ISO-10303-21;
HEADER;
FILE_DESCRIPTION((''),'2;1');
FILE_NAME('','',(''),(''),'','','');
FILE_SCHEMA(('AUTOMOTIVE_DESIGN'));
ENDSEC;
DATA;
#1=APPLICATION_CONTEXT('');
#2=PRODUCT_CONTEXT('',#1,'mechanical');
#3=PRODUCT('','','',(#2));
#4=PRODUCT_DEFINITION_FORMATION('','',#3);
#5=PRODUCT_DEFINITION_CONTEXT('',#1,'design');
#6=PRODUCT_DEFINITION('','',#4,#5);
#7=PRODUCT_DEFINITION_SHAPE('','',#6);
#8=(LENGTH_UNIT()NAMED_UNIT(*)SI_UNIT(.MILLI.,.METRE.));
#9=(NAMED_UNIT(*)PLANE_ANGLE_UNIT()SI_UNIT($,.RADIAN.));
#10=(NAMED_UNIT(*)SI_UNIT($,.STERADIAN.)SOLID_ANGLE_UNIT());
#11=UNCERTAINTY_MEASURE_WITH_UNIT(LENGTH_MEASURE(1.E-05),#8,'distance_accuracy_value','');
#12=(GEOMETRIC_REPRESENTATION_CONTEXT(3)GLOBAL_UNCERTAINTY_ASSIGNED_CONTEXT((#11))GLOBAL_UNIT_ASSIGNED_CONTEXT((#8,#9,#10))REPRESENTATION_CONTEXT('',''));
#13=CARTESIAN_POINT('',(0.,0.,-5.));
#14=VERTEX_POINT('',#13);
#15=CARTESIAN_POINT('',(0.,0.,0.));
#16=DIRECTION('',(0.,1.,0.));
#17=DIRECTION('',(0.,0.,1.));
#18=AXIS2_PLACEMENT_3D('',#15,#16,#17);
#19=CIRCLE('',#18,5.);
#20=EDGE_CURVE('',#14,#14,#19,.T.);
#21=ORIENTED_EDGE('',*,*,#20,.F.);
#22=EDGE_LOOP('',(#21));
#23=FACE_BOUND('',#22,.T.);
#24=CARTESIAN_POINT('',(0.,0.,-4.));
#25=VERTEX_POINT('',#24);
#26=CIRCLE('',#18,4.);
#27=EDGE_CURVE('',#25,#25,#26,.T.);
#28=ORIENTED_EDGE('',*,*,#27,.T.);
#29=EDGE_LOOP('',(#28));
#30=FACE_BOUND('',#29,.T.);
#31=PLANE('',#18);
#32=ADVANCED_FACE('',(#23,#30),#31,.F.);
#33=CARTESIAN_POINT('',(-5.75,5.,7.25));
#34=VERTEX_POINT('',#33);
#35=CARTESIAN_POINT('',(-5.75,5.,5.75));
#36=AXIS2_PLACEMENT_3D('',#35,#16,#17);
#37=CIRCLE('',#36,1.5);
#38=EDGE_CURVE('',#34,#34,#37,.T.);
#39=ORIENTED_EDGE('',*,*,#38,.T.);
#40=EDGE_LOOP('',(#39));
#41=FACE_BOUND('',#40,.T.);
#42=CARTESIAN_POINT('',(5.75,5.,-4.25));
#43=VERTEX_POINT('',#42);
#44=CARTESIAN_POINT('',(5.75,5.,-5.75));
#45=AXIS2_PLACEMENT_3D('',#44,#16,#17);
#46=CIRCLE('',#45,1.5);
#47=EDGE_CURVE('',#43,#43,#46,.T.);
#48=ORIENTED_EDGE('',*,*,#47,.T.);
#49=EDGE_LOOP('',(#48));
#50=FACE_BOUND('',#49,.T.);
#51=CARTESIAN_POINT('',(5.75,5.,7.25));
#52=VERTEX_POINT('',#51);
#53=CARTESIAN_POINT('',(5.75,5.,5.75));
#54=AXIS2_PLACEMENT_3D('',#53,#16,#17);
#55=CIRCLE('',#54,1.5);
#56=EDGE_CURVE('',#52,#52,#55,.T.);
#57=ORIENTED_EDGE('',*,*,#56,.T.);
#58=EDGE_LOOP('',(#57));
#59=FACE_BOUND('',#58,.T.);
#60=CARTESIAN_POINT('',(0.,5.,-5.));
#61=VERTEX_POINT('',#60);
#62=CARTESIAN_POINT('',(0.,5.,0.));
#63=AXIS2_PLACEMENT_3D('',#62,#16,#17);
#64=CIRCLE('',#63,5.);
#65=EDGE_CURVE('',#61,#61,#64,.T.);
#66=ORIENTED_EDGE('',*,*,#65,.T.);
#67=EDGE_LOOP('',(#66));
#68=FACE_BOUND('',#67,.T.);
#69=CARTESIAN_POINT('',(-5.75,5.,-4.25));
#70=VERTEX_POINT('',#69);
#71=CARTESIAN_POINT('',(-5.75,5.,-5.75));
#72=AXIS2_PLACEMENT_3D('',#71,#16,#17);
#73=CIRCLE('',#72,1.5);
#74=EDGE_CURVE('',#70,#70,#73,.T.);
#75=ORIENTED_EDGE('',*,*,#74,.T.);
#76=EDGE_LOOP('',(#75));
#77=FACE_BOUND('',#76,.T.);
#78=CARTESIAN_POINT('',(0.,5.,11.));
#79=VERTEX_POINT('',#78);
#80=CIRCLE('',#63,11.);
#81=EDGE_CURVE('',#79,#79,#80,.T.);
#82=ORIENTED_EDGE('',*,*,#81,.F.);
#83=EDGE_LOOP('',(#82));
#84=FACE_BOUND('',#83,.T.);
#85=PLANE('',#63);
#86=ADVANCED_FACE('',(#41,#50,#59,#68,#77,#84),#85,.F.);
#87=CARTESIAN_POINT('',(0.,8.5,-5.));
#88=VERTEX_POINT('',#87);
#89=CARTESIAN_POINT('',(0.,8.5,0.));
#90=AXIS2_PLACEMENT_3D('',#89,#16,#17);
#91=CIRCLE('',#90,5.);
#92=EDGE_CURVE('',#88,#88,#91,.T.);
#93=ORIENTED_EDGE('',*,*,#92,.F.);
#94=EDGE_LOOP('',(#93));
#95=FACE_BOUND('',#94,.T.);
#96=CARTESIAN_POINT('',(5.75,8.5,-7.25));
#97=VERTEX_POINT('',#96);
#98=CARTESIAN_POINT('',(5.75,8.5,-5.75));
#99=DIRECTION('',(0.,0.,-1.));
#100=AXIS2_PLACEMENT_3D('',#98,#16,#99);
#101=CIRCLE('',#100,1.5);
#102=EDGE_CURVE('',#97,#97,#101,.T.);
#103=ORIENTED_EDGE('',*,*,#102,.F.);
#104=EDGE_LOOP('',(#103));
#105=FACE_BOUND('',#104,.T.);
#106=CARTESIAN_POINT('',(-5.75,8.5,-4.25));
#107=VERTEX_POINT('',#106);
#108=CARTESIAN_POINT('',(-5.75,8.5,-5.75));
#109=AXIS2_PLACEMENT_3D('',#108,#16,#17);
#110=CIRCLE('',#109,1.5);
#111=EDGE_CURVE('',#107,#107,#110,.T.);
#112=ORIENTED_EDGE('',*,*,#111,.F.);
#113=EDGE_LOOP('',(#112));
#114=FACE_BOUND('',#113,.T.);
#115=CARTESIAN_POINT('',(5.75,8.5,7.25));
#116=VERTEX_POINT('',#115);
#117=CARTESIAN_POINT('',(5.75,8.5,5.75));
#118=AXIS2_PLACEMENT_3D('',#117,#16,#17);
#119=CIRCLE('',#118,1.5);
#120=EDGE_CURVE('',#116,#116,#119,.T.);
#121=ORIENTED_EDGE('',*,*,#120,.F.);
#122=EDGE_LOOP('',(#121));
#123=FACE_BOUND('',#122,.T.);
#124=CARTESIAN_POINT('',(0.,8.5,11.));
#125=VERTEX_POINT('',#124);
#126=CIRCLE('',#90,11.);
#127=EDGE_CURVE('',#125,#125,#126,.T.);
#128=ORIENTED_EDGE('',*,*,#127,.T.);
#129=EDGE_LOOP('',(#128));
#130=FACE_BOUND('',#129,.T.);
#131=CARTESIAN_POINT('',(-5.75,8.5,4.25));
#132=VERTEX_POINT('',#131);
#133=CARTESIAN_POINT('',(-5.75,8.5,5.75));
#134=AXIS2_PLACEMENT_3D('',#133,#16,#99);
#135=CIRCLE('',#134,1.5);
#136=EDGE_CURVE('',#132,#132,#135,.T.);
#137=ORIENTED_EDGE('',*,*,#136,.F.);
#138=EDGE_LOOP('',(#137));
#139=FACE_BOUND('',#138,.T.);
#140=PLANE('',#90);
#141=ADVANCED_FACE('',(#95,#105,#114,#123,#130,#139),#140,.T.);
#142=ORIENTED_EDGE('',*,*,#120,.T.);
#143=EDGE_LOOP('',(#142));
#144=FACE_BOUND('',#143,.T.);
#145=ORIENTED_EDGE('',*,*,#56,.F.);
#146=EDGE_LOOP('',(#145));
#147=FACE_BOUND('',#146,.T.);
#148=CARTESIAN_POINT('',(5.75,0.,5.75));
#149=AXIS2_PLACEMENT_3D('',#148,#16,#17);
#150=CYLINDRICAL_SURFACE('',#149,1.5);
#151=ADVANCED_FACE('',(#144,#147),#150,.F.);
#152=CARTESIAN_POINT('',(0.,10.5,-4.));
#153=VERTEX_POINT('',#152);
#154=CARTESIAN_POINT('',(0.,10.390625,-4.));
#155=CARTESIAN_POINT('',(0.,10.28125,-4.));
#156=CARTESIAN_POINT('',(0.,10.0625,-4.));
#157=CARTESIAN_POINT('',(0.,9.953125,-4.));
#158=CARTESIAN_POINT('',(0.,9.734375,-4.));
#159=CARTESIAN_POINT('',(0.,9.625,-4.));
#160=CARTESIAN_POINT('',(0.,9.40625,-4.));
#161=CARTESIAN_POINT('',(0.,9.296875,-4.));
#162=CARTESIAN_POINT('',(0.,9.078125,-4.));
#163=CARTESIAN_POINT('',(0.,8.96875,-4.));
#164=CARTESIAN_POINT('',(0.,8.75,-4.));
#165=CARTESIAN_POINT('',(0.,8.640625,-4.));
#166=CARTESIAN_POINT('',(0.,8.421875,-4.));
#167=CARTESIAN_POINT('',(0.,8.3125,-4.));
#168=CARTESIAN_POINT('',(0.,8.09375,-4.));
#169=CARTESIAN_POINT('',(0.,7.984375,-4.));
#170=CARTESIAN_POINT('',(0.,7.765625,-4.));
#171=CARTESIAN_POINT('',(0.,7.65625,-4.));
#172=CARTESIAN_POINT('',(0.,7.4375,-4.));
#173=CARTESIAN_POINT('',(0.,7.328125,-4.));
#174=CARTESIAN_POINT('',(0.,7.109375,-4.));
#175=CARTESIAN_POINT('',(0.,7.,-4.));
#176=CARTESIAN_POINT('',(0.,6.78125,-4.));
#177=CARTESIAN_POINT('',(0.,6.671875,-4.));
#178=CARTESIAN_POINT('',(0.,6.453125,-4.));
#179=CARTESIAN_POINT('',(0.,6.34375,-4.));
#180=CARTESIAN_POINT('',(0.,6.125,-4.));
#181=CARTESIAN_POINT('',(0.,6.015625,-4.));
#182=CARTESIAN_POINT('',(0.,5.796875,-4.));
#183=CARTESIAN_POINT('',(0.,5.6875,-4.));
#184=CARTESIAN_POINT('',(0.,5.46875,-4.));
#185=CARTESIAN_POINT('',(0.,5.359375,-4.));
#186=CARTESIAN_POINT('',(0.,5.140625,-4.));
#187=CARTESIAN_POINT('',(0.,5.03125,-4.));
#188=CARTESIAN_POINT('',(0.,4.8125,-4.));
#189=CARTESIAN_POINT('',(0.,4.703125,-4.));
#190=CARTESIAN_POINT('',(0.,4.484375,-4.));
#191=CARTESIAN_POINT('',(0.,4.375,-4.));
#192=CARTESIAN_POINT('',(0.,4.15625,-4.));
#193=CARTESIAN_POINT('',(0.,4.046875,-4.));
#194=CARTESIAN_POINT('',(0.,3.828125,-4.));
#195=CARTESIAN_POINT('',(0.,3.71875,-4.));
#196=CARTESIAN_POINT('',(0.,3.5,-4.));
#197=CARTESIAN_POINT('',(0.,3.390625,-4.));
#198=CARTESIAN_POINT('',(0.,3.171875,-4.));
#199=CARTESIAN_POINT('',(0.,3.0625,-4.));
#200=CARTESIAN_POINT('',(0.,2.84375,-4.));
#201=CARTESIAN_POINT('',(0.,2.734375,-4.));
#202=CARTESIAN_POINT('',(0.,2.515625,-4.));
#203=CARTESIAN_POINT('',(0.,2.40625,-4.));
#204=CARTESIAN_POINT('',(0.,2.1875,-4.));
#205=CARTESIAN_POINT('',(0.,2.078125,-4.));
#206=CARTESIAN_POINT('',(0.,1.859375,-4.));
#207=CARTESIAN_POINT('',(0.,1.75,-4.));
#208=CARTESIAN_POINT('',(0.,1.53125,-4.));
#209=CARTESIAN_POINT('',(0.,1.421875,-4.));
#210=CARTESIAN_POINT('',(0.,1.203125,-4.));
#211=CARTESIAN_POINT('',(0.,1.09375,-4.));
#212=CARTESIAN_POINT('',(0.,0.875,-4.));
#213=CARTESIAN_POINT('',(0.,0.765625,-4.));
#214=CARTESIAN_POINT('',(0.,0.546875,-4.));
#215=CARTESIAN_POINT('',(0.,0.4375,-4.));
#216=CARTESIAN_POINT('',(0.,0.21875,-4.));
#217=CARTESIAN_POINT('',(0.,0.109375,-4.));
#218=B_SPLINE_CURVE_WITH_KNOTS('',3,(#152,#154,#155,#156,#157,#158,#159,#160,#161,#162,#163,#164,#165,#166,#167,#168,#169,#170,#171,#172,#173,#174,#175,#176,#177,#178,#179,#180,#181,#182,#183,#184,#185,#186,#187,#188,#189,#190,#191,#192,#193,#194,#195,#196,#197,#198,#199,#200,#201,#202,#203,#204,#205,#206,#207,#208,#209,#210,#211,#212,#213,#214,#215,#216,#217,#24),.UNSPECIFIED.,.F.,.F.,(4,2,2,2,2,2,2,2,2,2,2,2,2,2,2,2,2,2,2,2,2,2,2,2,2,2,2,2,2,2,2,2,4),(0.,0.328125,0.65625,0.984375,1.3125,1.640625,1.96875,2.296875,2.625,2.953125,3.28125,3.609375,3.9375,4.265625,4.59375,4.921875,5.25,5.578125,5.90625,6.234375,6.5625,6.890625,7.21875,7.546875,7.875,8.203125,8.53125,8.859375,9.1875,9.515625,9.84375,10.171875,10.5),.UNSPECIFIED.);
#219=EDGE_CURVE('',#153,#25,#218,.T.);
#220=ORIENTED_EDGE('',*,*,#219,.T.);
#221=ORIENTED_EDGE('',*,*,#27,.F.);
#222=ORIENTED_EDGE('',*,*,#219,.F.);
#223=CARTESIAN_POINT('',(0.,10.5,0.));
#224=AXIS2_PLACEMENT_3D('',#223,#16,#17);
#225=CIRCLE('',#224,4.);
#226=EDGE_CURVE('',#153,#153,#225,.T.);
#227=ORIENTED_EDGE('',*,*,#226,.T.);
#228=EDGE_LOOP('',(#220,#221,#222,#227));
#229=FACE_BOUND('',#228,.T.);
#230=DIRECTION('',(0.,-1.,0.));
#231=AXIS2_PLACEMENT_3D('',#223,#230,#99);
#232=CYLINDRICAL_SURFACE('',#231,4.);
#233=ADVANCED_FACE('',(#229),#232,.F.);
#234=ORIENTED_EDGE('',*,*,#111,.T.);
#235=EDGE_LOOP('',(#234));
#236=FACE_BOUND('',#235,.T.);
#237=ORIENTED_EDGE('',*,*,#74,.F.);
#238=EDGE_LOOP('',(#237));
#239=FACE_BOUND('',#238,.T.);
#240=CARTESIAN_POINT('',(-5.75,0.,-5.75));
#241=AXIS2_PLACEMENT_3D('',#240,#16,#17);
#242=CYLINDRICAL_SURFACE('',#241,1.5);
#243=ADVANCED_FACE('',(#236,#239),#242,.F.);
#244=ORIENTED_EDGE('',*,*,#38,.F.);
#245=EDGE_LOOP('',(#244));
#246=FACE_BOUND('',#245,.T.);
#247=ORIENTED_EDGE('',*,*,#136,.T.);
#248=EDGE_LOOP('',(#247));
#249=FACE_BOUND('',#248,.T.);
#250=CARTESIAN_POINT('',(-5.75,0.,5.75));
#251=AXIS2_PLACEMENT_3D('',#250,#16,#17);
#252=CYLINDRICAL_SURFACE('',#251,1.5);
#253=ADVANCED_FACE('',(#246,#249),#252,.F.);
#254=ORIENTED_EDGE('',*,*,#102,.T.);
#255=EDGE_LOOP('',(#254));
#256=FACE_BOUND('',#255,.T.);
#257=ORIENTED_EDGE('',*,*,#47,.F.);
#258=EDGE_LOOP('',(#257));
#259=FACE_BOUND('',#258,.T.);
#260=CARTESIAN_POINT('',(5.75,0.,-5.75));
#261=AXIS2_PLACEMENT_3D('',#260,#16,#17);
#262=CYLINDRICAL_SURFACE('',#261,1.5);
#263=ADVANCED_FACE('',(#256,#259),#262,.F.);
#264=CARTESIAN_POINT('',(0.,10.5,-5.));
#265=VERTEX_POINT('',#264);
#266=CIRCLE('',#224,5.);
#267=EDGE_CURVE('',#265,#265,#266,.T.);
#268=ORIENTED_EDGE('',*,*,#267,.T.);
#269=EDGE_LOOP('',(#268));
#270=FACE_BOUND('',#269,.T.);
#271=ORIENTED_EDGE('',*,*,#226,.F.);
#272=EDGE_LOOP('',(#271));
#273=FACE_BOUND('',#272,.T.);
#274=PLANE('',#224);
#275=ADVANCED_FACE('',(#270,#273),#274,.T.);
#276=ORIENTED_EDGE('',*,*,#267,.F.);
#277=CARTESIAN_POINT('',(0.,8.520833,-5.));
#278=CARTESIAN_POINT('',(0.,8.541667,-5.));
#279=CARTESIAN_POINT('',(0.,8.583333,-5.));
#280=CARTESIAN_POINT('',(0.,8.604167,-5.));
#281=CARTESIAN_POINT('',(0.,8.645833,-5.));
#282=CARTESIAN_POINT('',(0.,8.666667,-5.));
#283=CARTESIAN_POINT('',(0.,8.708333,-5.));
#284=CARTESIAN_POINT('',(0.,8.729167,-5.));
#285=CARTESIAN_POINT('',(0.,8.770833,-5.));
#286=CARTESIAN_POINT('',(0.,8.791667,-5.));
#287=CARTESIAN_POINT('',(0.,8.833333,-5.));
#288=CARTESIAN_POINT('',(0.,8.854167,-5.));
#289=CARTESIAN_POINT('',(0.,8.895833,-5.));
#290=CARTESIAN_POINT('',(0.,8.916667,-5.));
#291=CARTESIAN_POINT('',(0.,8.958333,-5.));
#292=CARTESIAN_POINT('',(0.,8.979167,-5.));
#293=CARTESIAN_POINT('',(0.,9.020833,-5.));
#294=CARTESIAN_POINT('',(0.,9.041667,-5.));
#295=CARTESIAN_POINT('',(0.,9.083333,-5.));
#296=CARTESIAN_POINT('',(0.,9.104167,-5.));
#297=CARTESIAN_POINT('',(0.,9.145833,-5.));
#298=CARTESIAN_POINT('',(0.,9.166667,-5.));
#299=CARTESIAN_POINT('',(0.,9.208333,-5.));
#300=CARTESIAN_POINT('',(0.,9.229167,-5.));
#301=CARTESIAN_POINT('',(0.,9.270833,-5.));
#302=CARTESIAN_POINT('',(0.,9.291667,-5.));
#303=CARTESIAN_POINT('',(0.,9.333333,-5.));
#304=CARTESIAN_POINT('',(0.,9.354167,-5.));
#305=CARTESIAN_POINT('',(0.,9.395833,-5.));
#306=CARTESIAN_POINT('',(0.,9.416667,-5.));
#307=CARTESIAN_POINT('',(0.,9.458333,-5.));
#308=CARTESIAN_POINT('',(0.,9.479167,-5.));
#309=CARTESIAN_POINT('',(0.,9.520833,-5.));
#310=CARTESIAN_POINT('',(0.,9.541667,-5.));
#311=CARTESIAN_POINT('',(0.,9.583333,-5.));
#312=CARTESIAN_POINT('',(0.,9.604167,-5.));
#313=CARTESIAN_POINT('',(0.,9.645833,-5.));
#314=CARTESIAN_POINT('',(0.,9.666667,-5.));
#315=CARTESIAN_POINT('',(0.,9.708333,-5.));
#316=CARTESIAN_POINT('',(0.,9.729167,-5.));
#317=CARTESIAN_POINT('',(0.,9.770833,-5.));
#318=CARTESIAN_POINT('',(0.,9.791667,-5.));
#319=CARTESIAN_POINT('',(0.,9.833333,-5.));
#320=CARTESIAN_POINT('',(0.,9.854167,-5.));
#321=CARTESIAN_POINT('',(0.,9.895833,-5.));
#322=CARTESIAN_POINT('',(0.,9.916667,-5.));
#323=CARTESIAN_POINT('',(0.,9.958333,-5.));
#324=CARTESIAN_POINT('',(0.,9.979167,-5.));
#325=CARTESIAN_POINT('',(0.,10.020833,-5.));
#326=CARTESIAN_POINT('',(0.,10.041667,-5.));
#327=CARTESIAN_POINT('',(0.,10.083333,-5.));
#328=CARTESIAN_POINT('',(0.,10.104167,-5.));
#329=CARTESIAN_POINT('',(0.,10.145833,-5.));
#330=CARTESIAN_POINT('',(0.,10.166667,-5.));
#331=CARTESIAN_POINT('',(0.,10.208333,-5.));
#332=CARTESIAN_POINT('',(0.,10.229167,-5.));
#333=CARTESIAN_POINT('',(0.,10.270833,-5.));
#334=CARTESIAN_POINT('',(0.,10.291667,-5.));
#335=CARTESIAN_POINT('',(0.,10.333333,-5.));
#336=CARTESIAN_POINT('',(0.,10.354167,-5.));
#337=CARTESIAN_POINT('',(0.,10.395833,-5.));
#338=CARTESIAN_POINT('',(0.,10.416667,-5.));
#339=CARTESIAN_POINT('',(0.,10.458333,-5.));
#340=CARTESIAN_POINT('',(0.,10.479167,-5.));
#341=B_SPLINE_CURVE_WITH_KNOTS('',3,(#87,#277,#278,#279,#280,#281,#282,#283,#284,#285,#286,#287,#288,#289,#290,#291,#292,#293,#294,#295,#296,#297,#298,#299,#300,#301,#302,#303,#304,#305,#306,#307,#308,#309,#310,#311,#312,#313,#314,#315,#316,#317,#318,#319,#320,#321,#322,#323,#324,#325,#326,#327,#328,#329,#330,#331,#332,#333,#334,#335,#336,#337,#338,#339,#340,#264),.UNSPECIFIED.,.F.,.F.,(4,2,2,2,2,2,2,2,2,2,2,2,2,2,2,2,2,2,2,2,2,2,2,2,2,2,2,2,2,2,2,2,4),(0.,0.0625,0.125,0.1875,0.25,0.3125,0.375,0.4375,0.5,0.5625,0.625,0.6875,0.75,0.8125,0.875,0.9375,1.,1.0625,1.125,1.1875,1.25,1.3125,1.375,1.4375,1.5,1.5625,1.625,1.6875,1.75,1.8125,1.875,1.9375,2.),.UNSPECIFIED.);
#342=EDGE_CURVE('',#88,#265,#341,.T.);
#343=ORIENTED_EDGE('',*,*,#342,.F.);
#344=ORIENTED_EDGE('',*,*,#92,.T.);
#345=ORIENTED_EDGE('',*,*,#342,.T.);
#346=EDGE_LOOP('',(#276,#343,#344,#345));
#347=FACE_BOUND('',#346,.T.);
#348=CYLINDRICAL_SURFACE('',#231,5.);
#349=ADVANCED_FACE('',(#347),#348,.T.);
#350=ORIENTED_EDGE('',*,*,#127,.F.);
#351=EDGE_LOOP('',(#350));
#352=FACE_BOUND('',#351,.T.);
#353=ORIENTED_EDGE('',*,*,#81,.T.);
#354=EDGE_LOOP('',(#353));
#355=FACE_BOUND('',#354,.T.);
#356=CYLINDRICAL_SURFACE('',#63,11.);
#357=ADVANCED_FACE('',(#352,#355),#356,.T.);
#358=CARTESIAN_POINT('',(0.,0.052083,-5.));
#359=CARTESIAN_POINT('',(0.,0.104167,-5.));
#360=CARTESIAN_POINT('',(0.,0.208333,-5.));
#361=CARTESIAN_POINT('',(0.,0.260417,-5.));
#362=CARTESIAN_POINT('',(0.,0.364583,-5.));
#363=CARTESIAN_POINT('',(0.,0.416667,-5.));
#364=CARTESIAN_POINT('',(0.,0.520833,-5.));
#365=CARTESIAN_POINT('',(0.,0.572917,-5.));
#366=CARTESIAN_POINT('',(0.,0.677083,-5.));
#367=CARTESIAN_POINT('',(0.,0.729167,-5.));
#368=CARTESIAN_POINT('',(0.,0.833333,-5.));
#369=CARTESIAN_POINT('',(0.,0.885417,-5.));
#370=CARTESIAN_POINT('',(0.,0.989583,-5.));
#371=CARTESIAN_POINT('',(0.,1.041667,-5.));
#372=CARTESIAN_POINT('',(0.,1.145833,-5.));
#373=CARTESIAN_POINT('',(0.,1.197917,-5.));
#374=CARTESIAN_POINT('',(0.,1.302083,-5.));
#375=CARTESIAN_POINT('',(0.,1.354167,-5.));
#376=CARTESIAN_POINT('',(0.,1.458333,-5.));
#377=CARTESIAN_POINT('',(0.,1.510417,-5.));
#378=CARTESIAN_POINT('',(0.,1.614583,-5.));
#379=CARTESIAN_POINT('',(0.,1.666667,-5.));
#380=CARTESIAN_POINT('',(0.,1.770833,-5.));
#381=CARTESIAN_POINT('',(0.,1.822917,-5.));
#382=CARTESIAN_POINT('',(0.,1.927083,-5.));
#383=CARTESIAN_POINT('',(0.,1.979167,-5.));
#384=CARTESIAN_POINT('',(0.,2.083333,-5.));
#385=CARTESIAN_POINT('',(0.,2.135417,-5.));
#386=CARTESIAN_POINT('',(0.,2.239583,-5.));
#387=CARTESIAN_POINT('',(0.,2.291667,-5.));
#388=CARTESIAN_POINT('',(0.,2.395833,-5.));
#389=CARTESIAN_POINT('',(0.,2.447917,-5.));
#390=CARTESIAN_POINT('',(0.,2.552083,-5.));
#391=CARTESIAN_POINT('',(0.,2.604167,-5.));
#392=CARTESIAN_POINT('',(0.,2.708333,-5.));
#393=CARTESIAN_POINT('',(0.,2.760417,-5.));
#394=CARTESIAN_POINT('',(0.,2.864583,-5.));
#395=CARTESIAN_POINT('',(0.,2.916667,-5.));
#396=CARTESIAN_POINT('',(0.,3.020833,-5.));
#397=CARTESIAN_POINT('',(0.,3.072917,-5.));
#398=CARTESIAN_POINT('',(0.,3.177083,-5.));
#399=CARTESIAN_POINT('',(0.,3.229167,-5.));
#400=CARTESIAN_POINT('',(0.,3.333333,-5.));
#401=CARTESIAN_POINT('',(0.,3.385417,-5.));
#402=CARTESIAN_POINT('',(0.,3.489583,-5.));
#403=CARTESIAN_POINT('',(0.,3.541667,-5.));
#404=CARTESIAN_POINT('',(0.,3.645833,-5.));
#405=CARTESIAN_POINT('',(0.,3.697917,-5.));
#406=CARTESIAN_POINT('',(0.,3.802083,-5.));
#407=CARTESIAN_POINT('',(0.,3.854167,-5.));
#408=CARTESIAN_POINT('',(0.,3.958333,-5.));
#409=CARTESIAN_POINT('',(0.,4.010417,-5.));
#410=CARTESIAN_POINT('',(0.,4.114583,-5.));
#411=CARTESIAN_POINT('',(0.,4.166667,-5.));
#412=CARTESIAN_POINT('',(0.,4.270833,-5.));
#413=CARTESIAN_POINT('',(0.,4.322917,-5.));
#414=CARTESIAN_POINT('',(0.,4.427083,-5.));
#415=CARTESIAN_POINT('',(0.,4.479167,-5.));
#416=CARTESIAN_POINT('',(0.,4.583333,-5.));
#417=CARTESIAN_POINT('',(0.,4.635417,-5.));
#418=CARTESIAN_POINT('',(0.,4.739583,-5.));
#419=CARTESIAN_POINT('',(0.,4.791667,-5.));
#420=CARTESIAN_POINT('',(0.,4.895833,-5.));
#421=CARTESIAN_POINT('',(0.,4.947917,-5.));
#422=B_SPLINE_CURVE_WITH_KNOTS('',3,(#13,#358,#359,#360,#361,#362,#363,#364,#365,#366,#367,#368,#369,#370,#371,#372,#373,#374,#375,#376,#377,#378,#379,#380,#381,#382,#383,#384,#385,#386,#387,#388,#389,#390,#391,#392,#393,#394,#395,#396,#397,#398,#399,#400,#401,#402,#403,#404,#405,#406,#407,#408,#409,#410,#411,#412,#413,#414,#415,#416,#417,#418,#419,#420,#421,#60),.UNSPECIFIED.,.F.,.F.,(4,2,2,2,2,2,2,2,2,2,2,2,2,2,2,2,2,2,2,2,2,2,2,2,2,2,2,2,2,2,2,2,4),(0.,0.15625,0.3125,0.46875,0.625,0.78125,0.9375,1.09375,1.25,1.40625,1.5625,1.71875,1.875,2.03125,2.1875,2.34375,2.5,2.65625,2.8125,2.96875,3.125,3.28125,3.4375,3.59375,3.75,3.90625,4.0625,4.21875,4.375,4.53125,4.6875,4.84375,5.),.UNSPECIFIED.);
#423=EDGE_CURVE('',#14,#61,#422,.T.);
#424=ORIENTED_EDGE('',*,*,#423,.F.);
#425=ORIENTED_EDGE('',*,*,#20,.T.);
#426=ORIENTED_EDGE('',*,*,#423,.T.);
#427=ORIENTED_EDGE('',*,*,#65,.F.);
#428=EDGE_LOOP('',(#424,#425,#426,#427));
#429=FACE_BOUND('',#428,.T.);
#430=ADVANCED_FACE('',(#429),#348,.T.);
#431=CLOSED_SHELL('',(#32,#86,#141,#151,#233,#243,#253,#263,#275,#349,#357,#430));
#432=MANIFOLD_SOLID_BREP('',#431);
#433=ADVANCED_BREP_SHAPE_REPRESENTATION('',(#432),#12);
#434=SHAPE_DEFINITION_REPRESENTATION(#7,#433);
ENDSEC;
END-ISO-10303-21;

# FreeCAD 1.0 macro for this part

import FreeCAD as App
import Part
import Sketcher
from FreeCAD import Vector

doc = App.newDocument("Part")
body = doc.addObject("PartDesign::Body", "Body")

sketch1 = doc.addObject("Sketcher::SketchObject", "Sketch")
body.addObject(sketch1)
sketch1.AttachmentSupport = (doc.XZ_Plane, [""])
sketch1.MapMode = "FlatFace"
sketch1.addGeometry([
    Part.Circle(Vector(0, 0, 0), Vector(0, 0, 1), 5),
    Part.Circle(Vector(0, 0, 0), Vector(0, 0, 1), 4),
], False)
sketch1.addConstraint([
    Sketcher.Constraint("Coincident", 0, 3, -1, 1),
    Sketcher.Constraint("Coincident", 1, 3, -1, 1),
    Sketcher.Constraint("Diameter", 0, 10.0),
    Sketcher.Constraint("Diameter", 1, 8.0),
])
pad1 = doc.addObject("PartDesign::Pad", "Pad")
body.addObject(pad1)
pad1.Profile = sketch1
pad1.Length = 10.5
pad1.Reversed = True

sketch2 = doc.addObject("Sketcher::SketchObject", "Sketch001")
body.addObject(sketch2)
sketch2.AttachmentSupport = (doc.XZ_Plane, [""])
sketch2.MapMode = "FlatFace"
sketch2.AttachmentOffset = App.Placement(Vector(0, 0, -8.5), App.Rotation())
sketch2.addGeometry([
    Part.Circle(Vector(0, 0, 0), Vector(0, 0, 1), 11),
    Part.Circle(Vector(0, 0, 0), Vector(0, 0, 1), 4.5),
], False)
sketch2.addConstraint([
    Sketcher.Constraint("Coincident", 0, 3, -1, 1),
    Sketcher.Constraint("Coincident", 1, 3, -1, 1),
    Sketcher.Constraint("Diameter", 0, 22.0),
    Sketcher.Constraint("Diameter", 1, 9.0),
])
pad2 = doc.addObject("PartDesign::Pad", "Pad001")
body.addObject(pad2)
pad2.Profile = sketch2
pad2.Length = 3.5

sketch3 = doc.addObject("Sketcher::SketchObject", "Sketch002")
body.addObject(sketch3)
sketch3.AttachmentSupport = (doc.XZ_Plane, [""])
sketch3.MapMode = "FlatFace"
sketch3.AttachmentOffset = App.Placement(Vector(0, 0, -8.5), App.Rotation())
sketch3.addGeometry([
    Part.Circle(Vector(-5.75, -5.75, 0), Vector(0, 0, 1), 1.5),
    Part.Circle(Vector(5.75, -5.75, 0), Vector(0, 0, 1), 1.5),
    Part.Circle(Vector(5.75, 5.75, 0), Vector(0, 0, 1), 1.5),
    Part.Circle(Vector(-5.75, 5.75, 0), Vector(0, 0, 1), 1.5),
], False)
sketch3.addConstraint([
    Sketcher.Constraint("Equal", 0, 1),
    Sketcher.Constraint("Equal", 1, 2),
    Sketcher.Constraint("Equal", 2, 3),
    Sketcher.Constraint("Symmetric", 0, 3, 2, 3, -1, 1),
    Sketcher.Constraint("Symmetric", 1, 3, 3, 3, -1, 1),
    Sketcher.Constraint("Symmetric", 0, 3, 1, 3, -2),
    Sketcher.Constraint("Diameter", 0, 3.0),
    Sketcher.Constraint("DistanceX", 0, 3, 1, 3, 11.5),
    Sketcher.Constraint("DistanceY", 1, 3, 2, 3, 11.5),
])
pocket1 = doc.addObject("PartDesign::Pocket", "Pocket")
body.addObject(pocket1)
pocket1.Profile = sketch3
pocket1.Type = "ThroughAll"
pocket1.Reversed = True

doc.recompute()
